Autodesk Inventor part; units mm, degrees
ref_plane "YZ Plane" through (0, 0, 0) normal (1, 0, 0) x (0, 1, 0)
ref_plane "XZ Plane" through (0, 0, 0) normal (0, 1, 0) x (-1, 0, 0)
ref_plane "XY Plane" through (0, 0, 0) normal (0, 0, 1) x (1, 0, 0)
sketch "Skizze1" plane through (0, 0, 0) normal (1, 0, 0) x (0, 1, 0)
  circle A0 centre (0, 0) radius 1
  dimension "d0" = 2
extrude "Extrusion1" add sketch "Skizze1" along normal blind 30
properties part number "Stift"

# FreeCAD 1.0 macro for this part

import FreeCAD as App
import Part
import Sketcher

V = App.Vector

doc = App.newDocument("Part")
params = doc.addObject("Spreadsheet::Sheet", "Params")
for row, (alias, value) in enumerate([
    ("sketch1_diameter", "2 mm"),
    ("pad1_length", "30 mm"),
], start=1):
    params.set(f"A{row}", alias)
    params.set(f"B{row}", "=" + value)
    params.setAlias(f"B{row}", alias)

body = doc.addObject("PartDesign::Body", "Body")

# Sketch on YZ plane
sketch1 = doc.addObject("Sketcher::SketchObject", "Sketch")
body.addObject(sketch1)
sketch1.AttachmentSupport = (doc.YZ_Plane, [""])
sketch1.MapMode = "FlatFace"
sketch1.addGeometry(Part.Circle(V(0, 0, 0), V(0, 0, 1), 1), False)
sketch1.addConstraint([
    Sketcher.Constraint("Coincident", 0, 3, -1, 1),
    Sketcher.Constraint("Diameter", 0, 2.0),
])
sketch1.setExpression("Constraints[1]", "Params.sketch1_diameter")
pad1 = doc.addObject("PartDesign::Pad", "Pad")
body.addObject(pad1)
pad1.Profile = sketch1
pad1.setExpression("Length", "Params.pad1_length")

doc.recompute()
